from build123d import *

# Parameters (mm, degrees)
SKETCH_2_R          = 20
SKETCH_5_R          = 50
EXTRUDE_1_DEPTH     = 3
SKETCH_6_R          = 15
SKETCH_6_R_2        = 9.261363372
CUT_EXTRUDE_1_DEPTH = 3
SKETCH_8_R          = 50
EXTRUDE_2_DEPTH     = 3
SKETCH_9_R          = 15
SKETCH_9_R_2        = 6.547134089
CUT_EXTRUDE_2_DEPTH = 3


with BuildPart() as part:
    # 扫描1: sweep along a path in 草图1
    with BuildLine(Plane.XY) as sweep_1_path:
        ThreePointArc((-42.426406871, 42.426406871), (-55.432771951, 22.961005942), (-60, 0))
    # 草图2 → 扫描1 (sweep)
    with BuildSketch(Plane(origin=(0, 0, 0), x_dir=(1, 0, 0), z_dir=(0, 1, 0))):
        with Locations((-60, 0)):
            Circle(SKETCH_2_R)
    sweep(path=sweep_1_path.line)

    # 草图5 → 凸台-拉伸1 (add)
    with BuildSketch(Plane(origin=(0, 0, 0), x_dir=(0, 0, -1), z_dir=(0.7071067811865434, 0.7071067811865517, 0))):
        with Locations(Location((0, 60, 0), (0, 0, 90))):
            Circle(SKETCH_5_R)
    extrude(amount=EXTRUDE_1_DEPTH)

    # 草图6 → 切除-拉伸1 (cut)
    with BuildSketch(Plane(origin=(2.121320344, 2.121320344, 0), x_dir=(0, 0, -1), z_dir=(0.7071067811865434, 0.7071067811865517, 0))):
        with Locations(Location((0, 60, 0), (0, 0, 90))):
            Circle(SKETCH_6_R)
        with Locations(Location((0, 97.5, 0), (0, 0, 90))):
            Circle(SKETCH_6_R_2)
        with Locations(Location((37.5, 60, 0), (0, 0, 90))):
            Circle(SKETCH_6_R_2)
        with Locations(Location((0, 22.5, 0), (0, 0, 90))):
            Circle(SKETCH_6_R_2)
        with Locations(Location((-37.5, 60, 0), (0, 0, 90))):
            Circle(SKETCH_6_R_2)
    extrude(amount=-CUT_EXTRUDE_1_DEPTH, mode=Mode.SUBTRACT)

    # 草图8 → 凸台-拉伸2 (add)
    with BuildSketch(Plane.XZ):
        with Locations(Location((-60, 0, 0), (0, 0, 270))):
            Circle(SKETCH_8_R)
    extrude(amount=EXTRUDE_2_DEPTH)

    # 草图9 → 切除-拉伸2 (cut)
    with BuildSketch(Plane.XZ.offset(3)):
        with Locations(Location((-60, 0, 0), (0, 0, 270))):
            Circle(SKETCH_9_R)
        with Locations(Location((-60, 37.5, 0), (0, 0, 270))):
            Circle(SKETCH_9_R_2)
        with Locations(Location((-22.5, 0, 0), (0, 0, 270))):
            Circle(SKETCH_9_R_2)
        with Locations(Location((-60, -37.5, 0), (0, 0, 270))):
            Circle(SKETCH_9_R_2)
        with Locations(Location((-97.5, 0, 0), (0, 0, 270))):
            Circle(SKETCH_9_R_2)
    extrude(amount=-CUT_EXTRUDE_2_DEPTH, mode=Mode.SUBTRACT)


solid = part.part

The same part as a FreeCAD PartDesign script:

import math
import FreeCAD as App
import Part
import Sketcher
Q = App.Units.Quantity

doc = App.newDocument("Part")
body = doc.addObject("PartDesign::Body", "Body")

sketch1 = body.newObject("Sketcher::SketchObject", "Sketch")
sketch1.AttachmentSupport = (doc.getObject("XZ_Plane"), [""])
sketch1.MapMode = "FlatFace"
sketch1.addGeometry(Part.Circle(App.Vector(-60, 0, 0), App.Vector(0, 0, 1), 20), False)
sketch1.addConstraint([
    Sketcher.Constraint("PointOnObject", 0, 3, -1),
    Sketcher.Constraint("Diameter", 0, Q("40 mm")),
    Sketcher.Constraint("DistanceX", 0, 3, -1, 1, Q("60 mm")),
])

sketch2 = body.newObject("Sketcher::SketchObject", "Sketch001")
sketch2.AttachmentSupport = (doc.getObject("XY_Plane"), [""])
sketch2.MapMode = "FlatFace"
sketch2.addGeometry(Part.ArcOfCircle(Part.Circle(App.Vector(0, 0, 0), App.Vector(0, 0, 1), 60), math.radians(135), math.radians(180)), False)
sketch2.addConstraint([
    Sketcher.Constraint("Coincident", 0, 3, -1, 1),
    Sketcher.Constraint("PointOnObject", 0, 2, -1),
    Sketcher.Constraint("Radius", 0, Q("60 mm")),
    Sketcher.Constraint("DistanceX", 0, 1, -1, 1, Q("42.426407 mm")),
])
doc.recompute()

additivepipe = body.newObject("PartDesign::AdditivePipe", "AdditivePipe")
additivepipe.Profile = sketch1
additivepipe.Spine = (sketch2, ["Edge1"])

sketch3 = body.newObject("Sketcher::SketchObject", "Sketch002")
sketch3.Placement = App.Placement(App.Vector(0, 0, 0), App.Rotation(App.Vector(0, 0, -1), App.Vector(-0.707106781, 0.707106781, 0), App.Vector(0.707106781, 0.707106781, 0), "ZXY"))
sketch3.addGeometry(Part.Circle(App.Vector(0, 60, 0), App.Vector(0, 0, 1), 50), False)
sketch3.addConstraint([
    Sketcher.Constraint("PointOnObject", 0, 3, -2),
    Sketcher.Constraint("Diameter", 0, Q("100 mm")),
    Sketcher.Constraint("DistanceY", -1, 1, 0, 3, Q("60 mm")),
])
pad1 = body.newObject("PartDesign::Pad", "Pad")
pad1.Profile = sketch3
pad1.Length = 3

sketch4 = body.newObject("Sketcher::SketchObject", "Sketch003")
sketch4.Placement = App.Placement(App.Vector(2.12132, 2.12132, 0), App.Rotation(App.Vector(0, 0, -1), App.Vector(-0.707106781, 0.707106781, 0), App.Vector(0.707106781, 0.707106781, 0), "ZXY"))
sketch4.addGeometry([
    Part.Circle(App.Vector(0, 60, 0), App.Vector(0, 0, 1), 15),
    Part.Circle(App.Vector(0, 97, 0), App.Vector(0, 0, 1), 9),
    Part.Circle(App.Vector(38, 60, 0), App.Vector(0, 0, 1), 9),
    Part.Circle(App.Vector(0, 22, 0), App.Vector(0, 0, 1), 9),
    Part.Circle(App.Vector(-38, 60, 0), App.Vector(0, 0, 1), 9),
], False)
sketch4.addConstraint([
    Sketcher.Constraint("Equal", 1, 2),
    Sketcher.Constraint("Equal", 2, 3),
    Sketcher.Constraint("Equal", 3, 4),
    Sketcher.Constraint("Symmetric", 2, 3, 4, 3, -2),
    Sketcher.Constraint("PointOnObject", 0, 3, -2),
    Sketcher.Constraint("PointOnObject", 1, 3, -2),
    Sketcher.Constraint("PointOnObject", 3, 3, -2),
    Sketcher.Constraint("Horizontal", 0, 3, 2, 3),
    Sketcher.Constraint("Diameter", 0, Q("30 mm")),
    Sketcher.Constraint("DistanceY", -1, 1, 0, 3, Q("60 mm")),
    Sketcher.Constraint("DistanceY", 3, 3, 1, 3, Q("75 mm")),
    Sketcher.Constraint("DistanceX", 4, 3, 2, 3, Q("75 mm")),
    Sketcher.Constraint("DistanceY", -1, 1, 1, 3, Q("97.5 mm")),
    Sketcher.Constraint("Diameter", 1, Q("18.522727 mm")),
])
pocket1 = body.newObject("PartDesign::Pocket", "Pocket")
pocket1.Profile = sketch4
pocket1.Length = 3

sketch5 = body.newObject("Sketcher::SketchObject", "Sketch004")
sketch5.AttachmentSupport = (doc.getObject("XZ_Plane"), [""])
sketch5.MapMode = "FlatFace"
sketch5.addGeometry(Part.Circle(App.Vector(-60, 0, 0), App.Vector(0, 0, 1), 50), False)
sketch5.addConstraint([
    Sketcher.Constraint("PointOnObject", 0, 3, -1),
    Sketcher.Constraint("Diameter", 0, Q("100 mm")),
    Sketcher.Constraint("DistanceX", 0, 3, -1, 1, Q("60 mm")),
])
pad2 = body.newObject("PartDesign::Pad", "Pad001")
pad2.Profile = sketch5
pad2.Length = 3

sketch6 = body.newObject("Sketcher::SketchObject", "Sketch005")
sketch6.AttachmentSupport = (doc.getObject("XZ_Plane"), [""])
sketch6.MapMode = "FlatFace"
sketch6.AttachmentOffset = App.Placement(App.Vector(0, 0, 3), App.Rotation())
sketch6.addGeometry([
    Part.Circle(App.Vector(-60, 0, 0), App.Vector(0, 0, 1), 15),
    Part.Circle(App.Vector(-60, 38, 0), App.Vector(0, 0, 1), 7),
    Part.Circle(App.Vector(-22, 0, 0), App.Vector(0, 0, 1), 7),
    Part.Circle(App.Vector(-60, -38, 0), App.Vector(0, 0, 1), 7),
    Part.Circle(App.Vector(-98, 0, 0), App.Vector(0, 0, 1), 7),
], False)
sketch6.addConstraint([
    Sketcher.Constraint("Equal", 1, 2),
    Sketcher.Constraint("Equal", 2, 3),
    Sketcher.Constraint("Equal", 3, 4),
    Sketcher.Constraint("Symmetric", 1, 3, 3, 3, -1),
    Sketcher.Constraint("PointOnObject", 0, 3, -1),
    Sketcher.Constraint("PointOnObject", 2, 3, -1),
    Sketcher.Constraint("PointOnObject", 4, 3, -1),
    Sketcher.Constraint("Vertical", 0, 3, 1, 3),
    Sketcher.Constraint("Diameter", 0, Q("30 mm")),
    Sketcher.Constraint("DistanceX", 0, 3, -1, 1, Q("60 mm")),
    Sketcher.Constraint("DistanceY", 3, 3, 1, 3, Q("75 mm")),
    Sketcher.Constraint("DistanceX", 4, 3, 2, 3, Q("75 mm")),
    Sketcher.Constraint("DistanceX", 2, 3, -1, 1, Q("22.5 mm")),
    Sketcher.Constraint("Diameter", 1, Q("13.094268 mm")),
])
pocket2 = body.newObject("PartDesign::Pocket", "Pocket001")
pocket2.Profile = sketch6
pocket2.Length = 3

doc.recompute()
